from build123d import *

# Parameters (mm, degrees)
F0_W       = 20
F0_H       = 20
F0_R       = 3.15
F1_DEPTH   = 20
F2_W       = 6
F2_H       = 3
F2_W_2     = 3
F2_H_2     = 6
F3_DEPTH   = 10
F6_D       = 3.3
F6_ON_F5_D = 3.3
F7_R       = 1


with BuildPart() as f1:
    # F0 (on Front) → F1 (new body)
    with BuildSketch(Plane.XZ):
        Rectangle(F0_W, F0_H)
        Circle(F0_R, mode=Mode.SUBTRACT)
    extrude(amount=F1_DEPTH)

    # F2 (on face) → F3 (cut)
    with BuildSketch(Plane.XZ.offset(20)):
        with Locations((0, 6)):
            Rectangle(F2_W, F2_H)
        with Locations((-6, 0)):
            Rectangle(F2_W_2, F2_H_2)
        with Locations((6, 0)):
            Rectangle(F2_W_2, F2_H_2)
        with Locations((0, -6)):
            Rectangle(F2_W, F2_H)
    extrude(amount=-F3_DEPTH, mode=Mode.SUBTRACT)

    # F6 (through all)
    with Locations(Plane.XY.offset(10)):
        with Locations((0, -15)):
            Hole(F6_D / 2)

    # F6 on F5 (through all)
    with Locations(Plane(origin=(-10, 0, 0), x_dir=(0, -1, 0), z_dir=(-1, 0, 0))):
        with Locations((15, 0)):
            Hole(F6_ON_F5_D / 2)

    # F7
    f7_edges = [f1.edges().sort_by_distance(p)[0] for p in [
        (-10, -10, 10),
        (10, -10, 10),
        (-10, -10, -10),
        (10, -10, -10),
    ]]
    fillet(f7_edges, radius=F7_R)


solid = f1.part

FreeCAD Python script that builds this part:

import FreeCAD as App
import Part
import Sketcher
from FreeCAD import Vector
Q = App.Units.Quantity


def edges_at(feature, points):
    """Names of the edges that pass closest to the given points."""
    edges = feature.Shape.Edges
    near = lambda p: min(range(len(edges)), key=lambda i: edges[i].distToShape(Part.Vertex(*p))[0])
    return sorted({f"Edge{near(p) + 1}" for p in points})

doc = App.newDocument("Part")
body = doc.addObject("PartDesign::Body", "Body")

sketch1 = body.newObject("Sketcher::SketchObject", "Sketch")
sketch1.AttachmentSupport = (doc.getObject("XZ_Plane"), [""])
sketch1.MapMode = "FlatFace"
sketch1.addGeometry([
    Part.LineSegment(Vector(-10, 10, 0), Vector(-10, -10, 0)),
    Part.LineSegment(Vector(-10, -10, 0), Vector(10, -10, 0)),
    Part.LineSegment(Vector(10, -10, 0), Vector(10, 10, 0)),
    Part.LineSegment(Vector(10, 10, 0), Vector(-10, 10, 0)),
    Part.Circle(Vector(0, 0, 0), Vector(0, 0, 1), 3.1),
], False)
sketch1.addConstraint([
    Sketcher.Constraint("Coincident", 0, 2, 1, 1),
    Sketcher.Constraint("Coincident", 1, 2, 2, 1),
    Sketcher.Constraint("Coincident", 2, 2, 3, 1),
    Sketcher.Constraint("Coincident", 3, 2, 0, 1),
    Sketcher.Constraint("Vertical", 0),
    Sketcher.Constraint("Horizontal", 1),
    Sketcher.Constraint("Vertical", 2),
    Sketcher.Constraint("Horizontal", 3),
    Sketcher.Constraint("Coincident", 4, 3, -1, 1),
    Sketcher.Constraint("Symmetric", 0, 2, 2, 2, -1, 1),
    Sketcher.Constraint("Equal", 3, 0),
    Sketcher.Constraint("Diameter", 4, Q("6.3 mm")),
    Sketcher.Constraint("DistanceX", 1, 1, 1, 2, Q("20 mm")),
])
pad1 = body.newObject("PartDesign::Pad", "Pad")
pad1.Profile = sketch1
pad1.Length = 20

sketch2 = body.newObject("Sketcher::SketchObject", "Sketch001")
sketch2.AttachmentSupport = (doc.getObject("XZ_Plane"), [""])
sketch2.MapMode = "FlatFace"
sketch2.AttachmentOffset = App.Placement(Vector(0, 0, 20), App.Rotation())
sketch2.addGeometry([
    Part.LineSegment(Vector(-3, 7.5, 0), Vector(-3, 4.5, 0)),
    Part.LineSegment(Vector(-3, 4.5, 0), Vector(3, 4.5, 0)),
    Part.LineSegment(Vector(3, 4.5, 0), Vector(3, 7.5, 0)),
    Part.LineSegment(Vector(3, 7.5, 0), Vector(-3, 7.5, 0)),
    Part.LineSegment(Vector(-7.5, 3, 0), Vector(-7.5, -3, 0)),
    Part.LineSegment(Vector(-7.5, -3, 0), Vector(-4.5, -3, 0)),
    Part.LineSegment(Vector(-4.5, -3, 0), Vector(-4.5, 3, 0)),
    Part.LineSegment(Vector(-4.5, 3, 0), Vector(-7.5, 3, 0)),
    Part.LineSegment(Vector(4.5, 3, 0), Vector(4.5, -3, 0)),
    Part.LineSegment(Vector(4.5, -3, 0), Vector(7.5, -3, 0)),
    Part.LineSegment(Vector(7.5, -3, 0), Vector(7.5, 3, 0)),
    Part.LineSegment(Vector(7.5, 3, 0), Vector(4.5, 3, 0)),
    Part.LineSegment(Vector(-3, -4.5, 0), Vector(-3, -7.5, 0)),
    Part.LineSegment(Vector(-3, -7.5, 0), Vector(3, -7.5, 0)),
    Part.LineSegment(Vector(3, -7.5, 0), Vector(3, -4.5, 0)),
    Part.LineSegment(Vector(3, -4.5, 0), Vector(-3, -4.5, 0)),
], False)
sketch2.addConstraint([
    Sketcher.Constraint("Coincident", 0, 2, 1, 1),
    Sketcher.Constraint("Coincident", 1, 2, 2, 1),
    Sketcher.Constraint("Coincident", 2, 2, 3, 1),
    Sketcher.Constraint("Coincident", 3, 2, 0, 1),
    Sketcher.Constraint("Coincident", 4, 2, 5, 1),
    Sketcher.Constraint("Coincident", 5, 2, 6, 1),
    Sketcher.Constraint("Coincident", 6, 2, 7, 1),
    Sketcher.Constraint("Coincident", 7, 2, 4, 1),
    Sketcher.Constraint("Coincident", 8, 2, 9, 1),
    Sketcher.Constraint("Coincident", 9, 2, 10, 1),
    Sketcher.Constraint("Coincident", 10, 2, 11, 1),
    Sketcher.Constraint("Coincident", 11, 2, 8, 1),
    Sketcher.Constraint("Coincident", 12, 2, 13, 1),
    Sketcher.Constraint("Coincident", 13, 2, 14, 1),
    Sketcher.Constraint("Coincident", 14, 2, 15, 1),
    Sketcher.Constraint("Coincident", 15, 2, 12, 1),
    Sketcher.Constraint("Vertical", 0),
    Sketcher.Constraint("Horizontal", 1),
    Sketcher.Constraint("Vertical", 2),
    Sketcher.Constraint("Horizontal", 3),
    Sketcher.Constraint("Vertical", 4),
    Sketcher.Constraint("Horizontal", 5),
    Sketcher.Constraint("Vertical", 6),
    Sketcher.Constraint("Horizontal", 7),
    Sketcher.Constraint("Vertical", 8),
    Sketcher.Constraint("Horizontal", 9),
    Sketcher.Constraint("Vertical", 10),
    Sketcher.Constraint("Horizontal", 11),
    Sketcher.Constraint("Vertical", 12),
    Sketcher.Constraint("Horizontal", 13),
    Sketcher.Constraint("Vertical", 14),
    Sketcher.Constraint("Horizontal", 15),
    Sketcher.Constraint("Symmetric", 6, 2, 8, 2, -1, 1),
    Sketcher.Constraint("Symmetric", 4, 2, 10, 2, -1, 1),
    Sketcher.Constraint("Symmetric", 2, 2, 12, 2, -1, 1),
    Sketcher.Constraint("Symmetric", 0, 2, 14, 2, -1, 1),
    Sketcher.Constraint("Horizontal", 5, 2, 8, 2),
    Sketcher.Constraint("Vertical", 3, 2, 12, 2),
    Sketcher.Constraint("Equal", 11, 0),
    Sketcher.Constraint("Equal", 15, 4),
    Sketcher.Constraint("DistanceX", 1, 1, 1, 2, Q("6 mm")),
    Sketcher.Constraint("DistanceX", 5, 1, 5, 2, Q("3 mm")),
    Sketcher.Constraint("DistanceX", 5, 2, 8, 2, Q("9 mm")),
    Sketcher.Constraint("DistanceY", -1, 1, 0, 2, Q("4.5 mm")),
])
pocket1 = body.newObject("PartDesign::Pocket", "Pocket")
pocket1.Profile = sketch2
pocket1.Length = 10

sketch3 = body.newObject("Sketcher::SketchObject", "Sketch002")
sketch3.AttachmentSupport = (doc.getObject("XY_Plane"), [""])
sketch3.MapMode = "FlatFace"
sketch3.AttachmentOffset = App.Placement(Vector(0, 0, 10), App.Rotation())
sketch3.addGeometry(Part.Circle(Vector(0, -15, 0), Vector(0, 0, 1), 1.6), False)
sketch3.addConstraint([
    Sketcher.Constraint("PointOnObject", 0, 3, -2),
    Sketcher.Constraint("Diameter", 0, Q("3.3 mm")),
    Sketcher.Constraint("DistanceY", 0, 3, -1, 1, Q("15 mm")),
])
doc.recompute()
hole = body.newObject("PartDesign::Hole", "Hole")
hole.Profile = sketch3
hole.ThreadType = "None"
hole.Diameter = 3.3
hole.DepthType = "ThroughAll"

sketch4 = body.newObject("Sketcher::SketchObject", "Sketch003")
sketch4.AttachmentSupport = (doc.getObject("YZ_Plane"), [""])
sketch4.MapMode = "FlatFace"
sketch4.AttachmentOffset = App.Placement(Vector(0, 0, -10), App.Rotation())
sketch4.addGeometry(Part.Circle(Vector(-15, 0, 0), Vector(0, 0, 1), 1.6), False)
sketch4.addConstraint([
    Sketcher.Constraint("PointOnObject", 0, 3, -1),
    Sketcher.Constraint("Diameter", 0, Q("3.3 mm")),
    Sketcher.Constraint("DistanceX", 0, 3, -1, 1, Q("15 mm")),
])
doc.recompute()
hole2 = body.newObject("PartDesign::Hole", "Hole001")
hole2.Profile = sketch4
hole2.ThreadType = "None"
hole2.Diameter = 3.3
hole2.DepthType = "ThroughAll"
hole2.Reversed = True
doc.recompute()

fillet = body.newObject("PartDesign::Fillet", "Fillet")
fillet.Base = (hole2, edges_at(hole2, [
    (-10, -10, 10),
    (10, -10, 10),
    (-10, -10, -10),
    (10, -10, -10),
]))
fillet.Radius = 1

doc.recompute()
